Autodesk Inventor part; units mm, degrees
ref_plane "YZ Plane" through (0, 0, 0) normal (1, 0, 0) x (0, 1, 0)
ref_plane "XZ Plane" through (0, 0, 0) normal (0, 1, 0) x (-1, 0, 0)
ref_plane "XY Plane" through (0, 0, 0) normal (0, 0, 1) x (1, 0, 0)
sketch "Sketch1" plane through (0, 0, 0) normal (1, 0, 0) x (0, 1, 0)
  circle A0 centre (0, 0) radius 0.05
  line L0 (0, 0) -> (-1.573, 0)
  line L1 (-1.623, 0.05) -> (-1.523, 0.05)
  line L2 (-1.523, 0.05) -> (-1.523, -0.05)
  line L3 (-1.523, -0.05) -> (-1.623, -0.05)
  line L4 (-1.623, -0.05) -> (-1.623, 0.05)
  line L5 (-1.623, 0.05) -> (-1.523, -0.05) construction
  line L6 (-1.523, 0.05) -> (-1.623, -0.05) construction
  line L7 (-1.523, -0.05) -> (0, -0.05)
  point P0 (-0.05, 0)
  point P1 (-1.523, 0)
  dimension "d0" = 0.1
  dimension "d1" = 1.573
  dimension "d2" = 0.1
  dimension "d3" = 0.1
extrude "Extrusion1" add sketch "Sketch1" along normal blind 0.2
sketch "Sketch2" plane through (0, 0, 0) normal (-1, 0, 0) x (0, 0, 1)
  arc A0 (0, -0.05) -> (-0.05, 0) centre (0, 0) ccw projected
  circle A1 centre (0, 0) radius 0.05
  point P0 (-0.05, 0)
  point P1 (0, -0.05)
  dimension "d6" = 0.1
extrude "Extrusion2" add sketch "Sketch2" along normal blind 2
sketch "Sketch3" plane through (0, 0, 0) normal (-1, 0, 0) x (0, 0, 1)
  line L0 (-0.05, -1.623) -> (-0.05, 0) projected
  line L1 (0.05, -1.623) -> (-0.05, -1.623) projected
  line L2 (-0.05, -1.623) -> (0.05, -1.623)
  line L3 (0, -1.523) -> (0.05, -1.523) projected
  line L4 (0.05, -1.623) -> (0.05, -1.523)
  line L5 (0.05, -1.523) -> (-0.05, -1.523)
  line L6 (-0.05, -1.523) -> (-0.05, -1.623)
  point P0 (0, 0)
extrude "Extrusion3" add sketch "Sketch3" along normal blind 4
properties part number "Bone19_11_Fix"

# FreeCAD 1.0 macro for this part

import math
import FreeCAD as App
import Part
import Sketcher
from FreeCAD import Vector

doc = App.newDocument("Part")
params = doc.addObject("Spreadsheet::Sheet", "Params")
for row, (alias, value) in enumerate([
    ("sketch1_radius", "0.05 mm"),
    ("sketch1_width", "0.1 mm"),
    ("pad1_length", "0.2 mm"),
    ("sketch2_diameter", "0.1 mm"),
    ("pad2_length", "2 mm"),
    ("sketch3_width", "0.1 mm"),
    ("pad3_length", "4 mm"),
], start=1):
    params.set(f"A{row}", alias)
    params.set(f"B{row}", "=" + value)
    params.setAlias(f"B{row}", alias)

body = doc.addObject("PartDesign::Body", "Body")

sketch1 = doc.addObject("Sketcher::SketchObject", "Sketch")
body.addObject(sketch1)
sketch1.AttachmentSupport = (doc.YZ_Plane, [""])
sketch1.MapMode = "FlatFace"
sketch1.addGeometry(Part.LineSegment(Vector(-0.05, 0, 0), Vector(-1.52, 0, 0)), False)
sketch1.addGeometry(Part.LineSegment(Vector(-1.52, 0, 0), Vector(-1.52, 0.05, 0)), False)
sketch1.addGeometry(Part.LineSegment(Vector(-1.52, 0.05, 0), Vector(-1.62, 0.05, 0)), False)
sketch1.addGeometry(Part.LineSegment(Vector(-1.62, 0.05, 0), Vector(-1.62, -0.05, 0)), False)
sketch1.addGeometry(Part.LineSegment(Vector(-1.62, -0.05, 0), Vector(0, -0.05, 0)), False)
sketch1.addGeometry(Part.ArcOfCircle(Part.Circle(Vector(0, 0, 0), Vector(0, 0, 1), 0.05), math.radians(-90), math.radians(180)), False)
sketch1.addConstraint(Sketcher.Constraint("Coincident", 0, 2, 1, 1))
sketch1.addConstraint(Sketcher.Constraint("Coincident", 1, 2, 2, 1))
sketch1.addConstraint(Sketcher.Constraint("Coincident", 2, 2, 3, 1))
sketch1.addConstraint(Sketcher.Constraint("Coincident", 3, 2, 4, 1))
sketch1.addConstraint(Sketcher.Constraint("Tangent", 4, 2, 5, 1))
sketch1.addConstraint(Sketcher.Constraint("Coincident", 5, 2, 0, 1))
sketch1.addConstraint(Sketcher.Constraint("Horizontal", 0))
sketch1.addConstraint(Sketcher.Constraint("Vertical", 1))
sketch1.addConstraint(Sketcher.Constraint("Horizontal", 2))
sketch1.addConstraint(Sketcher.Constraint("Vertical", 3))
sketch1.addConstraint(Sketcher.Constraint("Horizontal", 4))
sketch1.addConstraint(Sketcher.Constraint("Coincident", 5, 3, -1, 1))
sketch1.addConstraint(Sketcher.Constraint("PointOnObject", 0, 2, -1))
sketch1.addConstraint(Sketcher.Constraint("Equal", 2, 3))
sketch1.addConstraint(Sketcher.Constraint("Radius", 5, 0.05))
sketch1.addConstraint(Sketcher.Constraint("DistanceX", 2, 2, 2, 1, 0.1))
sketch1.addConstraint(Sketcher.Constraint("DistanceX", 2, 2, 5, 2, 1.573))
sketch1.setExpression("Constraints[14]", "Params.sketch1_radius")
sketch1.setExpression("Constraints[15]", "Params.sketch1_width")
pad1 = doc.addObject("PartDesign::Pad", "Pad")
body.addObject(pad1)
pad1.Profile = sketch1
pad1.setExpression("Length", "Params.pad1_length")

sketch2 = doc.addObject("Sketcher::SketchObject", "Sketch001")
body.addObject(sketch2)
sketch2.AttachmentSupport = (doc.YZ_Plane, [""])
sketch2.MapMode = "FlatFace"
sketch2.addGeometry(Part.Circle(Vector(0, 0, 0), Vector(0, 0, 1), 0.05), False)
sketch2.addConstraint(Sketcher.Constraint("Coincident", 0, 3, -1, 1))
sketch2.addConstraint(Sketcher.Constraint("Diameter", 0, 0.1))
sketch2.setExpression("Constraints[1]", "Params.sketch2_diameter")
pad2 = doc.addObject("PartDesign::Pad", "Pad001")
body.addObject(pad2)
pad2.Profile = sketch2
pad2.setExpression("Length", "Params.pad2_length")
pad2.Reversed = True

sketch3 = doc.addObject("Sketcher::SketchObject", "Sketch002")
body.addObject(sketch3)
sketch3.AttachmentSupport = (doc.YZ_Plane, [""])
sketch3.MapMode = "FlatFace"
sketch3.addGeometry(Part.LineSegment(Vector(-1.52, -0.05, 0), Vector(-1.62, -0.05, 0)), False)
sketch3.addGeometry(Part.LineSegment(Vector(-1.62, -0.05, 0), Vector(-1.62, 0.05, 0)), False)
sketch3.addGeometry(Part.LineSegment(Vector(-1.62, 0.05, 0), Vector(-1.52, 0.05, 0)), False)
sketch3.addGeometry(Part.LineSegment(Vector(-1.52, 0.05, 0), Vector(-1.52, -0.05, 0)), False)
sketch3.addConstraint(Sketcher.Constraint("Coincident", 0, 2, 1, 1))
sketch3.addConstraint(Sketcher.Constraint("Coincident", 1, 2, 2, 1))
sketch3.addConstraint(Sketcher.Constraint("Coincident", 2, 2, 3, 1))
sketch3.addConstraint(Sketcher.Constraint("Coincident", 3, 2, 0, 1))
sketch3.addConstraint(Sketcher.Constraint("Horizontal", 0))
sketch3.addConstraint(Sketcher.Constraint("Vertical", 1))
sketch3.addConstraint(Sketcher.Constraint("Horizontal", 2))
sketch3.addConstraint(Sketcher.Constraint("Vertical", 3))
sketch3.addConstraint(Sketcher.Constraint("Equal", 2, 1))
sketch3.addConstraint(Sketcher.Constraint("DistanceX", 0, 2, 0, 1, 0.1))
sketch3.addConstraint(Sketcher.Constraint("DistanceY", 0, 2, -1, 1, 0.05))
sketch3.addConstraint(Sketcher.Constraint("DistanceX", 0, 2, -1, 1, 1.623))
sketch3.setExpression("Constraints[9]", "Params.sketch3_width")
pad3 = doc.addObject("PartDesign::Pad", "Pad002")
body.addObject(pad3)
pad3.Profile = sketch3
pad3.setExpression("Length", "Params.pad3_length")
pad3.Reversed = True

doc.recompute()
